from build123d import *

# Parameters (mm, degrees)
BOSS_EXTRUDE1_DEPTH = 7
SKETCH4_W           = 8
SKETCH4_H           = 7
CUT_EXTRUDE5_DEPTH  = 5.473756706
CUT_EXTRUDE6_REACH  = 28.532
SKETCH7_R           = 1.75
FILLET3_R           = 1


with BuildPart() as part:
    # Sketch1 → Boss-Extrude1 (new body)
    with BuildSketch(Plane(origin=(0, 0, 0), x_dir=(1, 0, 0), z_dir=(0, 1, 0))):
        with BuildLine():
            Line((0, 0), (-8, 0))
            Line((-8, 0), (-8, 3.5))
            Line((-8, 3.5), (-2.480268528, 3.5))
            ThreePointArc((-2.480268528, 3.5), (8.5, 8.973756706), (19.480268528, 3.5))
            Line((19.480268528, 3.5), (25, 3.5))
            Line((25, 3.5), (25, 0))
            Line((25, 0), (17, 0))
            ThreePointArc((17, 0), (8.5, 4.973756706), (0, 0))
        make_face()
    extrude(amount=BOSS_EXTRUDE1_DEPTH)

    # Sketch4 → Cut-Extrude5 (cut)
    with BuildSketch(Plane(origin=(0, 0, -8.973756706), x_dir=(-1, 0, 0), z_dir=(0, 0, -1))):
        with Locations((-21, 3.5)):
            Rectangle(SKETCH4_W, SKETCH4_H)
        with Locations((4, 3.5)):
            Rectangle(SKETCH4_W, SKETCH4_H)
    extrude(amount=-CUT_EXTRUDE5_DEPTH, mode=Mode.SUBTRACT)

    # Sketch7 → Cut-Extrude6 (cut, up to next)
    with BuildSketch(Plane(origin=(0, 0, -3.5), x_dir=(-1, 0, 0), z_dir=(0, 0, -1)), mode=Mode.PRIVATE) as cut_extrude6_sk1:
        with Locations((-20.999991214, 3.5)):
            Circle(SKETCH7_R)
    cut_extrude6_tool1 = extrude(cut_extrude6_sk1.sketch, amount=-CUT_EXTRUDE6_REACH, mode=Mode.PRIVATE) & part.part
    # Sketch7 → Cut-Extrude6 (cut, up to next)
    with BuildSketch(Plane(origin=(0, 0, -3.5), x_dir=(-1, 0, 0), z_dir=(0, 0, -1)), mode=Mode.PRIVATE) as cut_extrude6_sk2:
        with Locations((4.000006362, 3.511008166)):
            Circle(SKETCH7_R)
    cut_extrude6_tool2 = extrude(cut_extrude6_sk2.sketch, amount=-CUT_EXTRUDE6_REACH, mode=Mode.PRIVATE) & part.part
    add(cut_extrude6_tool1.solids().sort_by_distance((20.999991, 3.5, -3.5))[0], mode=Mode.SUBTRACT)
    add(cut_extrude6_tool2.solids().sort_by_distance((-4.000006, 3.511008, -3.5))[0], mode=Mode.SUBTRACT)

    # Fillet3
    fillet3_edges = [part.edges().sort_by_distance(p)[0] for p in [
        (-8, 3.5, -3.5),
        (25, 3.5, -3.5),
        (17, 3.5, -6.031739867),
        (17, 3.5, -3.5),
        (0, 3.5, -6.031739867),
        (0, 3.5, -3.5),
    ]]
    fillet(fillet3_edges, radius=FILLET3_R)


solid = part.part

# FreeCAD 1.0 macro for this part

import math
import FreeCAD as App
import Part
import Sketcher

V = App.Vector


def edges_at(feature, points):
    """Names of the edges that pass closest to the given points."""
    edges = feature.Shape.Edges
    near = lambda p: min(range(len(edges)), key=lambda i: edges[i].distToShape(Part.Vertex(*p))[0])
    return sorted({f"Edge{near(p) + 1}" for p in points})

doc = App.newDocument("Part")
body = doc.addObject("PartDesign::Body", "Body")

sketch1 = body.newObject("Sketcher::SketchObject", "Sketch")
sketch1.AttachmentSupport = (doc.getObject("XZ_Plane"), [""])
sketch1.MapMode = "FlatFace"
sketch1.addGeometry([
    Part.LineSegment(V(-8, 0, 0), V(0, 0, 0)),
    Part.ArcOfCircle(Part.Circle(V(8.5, 4.776243, 0), V(0, 0, 1), 9.75), math.radians(-150.66789), math.radians(-29.33211)),
    Part.LineSegment(V(17, 0, 0), V(25, 0, 0)),
    Part.LineSegment(V(25, 0, 0), V(25, -3.5, 0)),
    Part.LineSegment(V(25, -3.5, 0), V(19.480269, -3.5, 0)),
    Part.ArcOfCircle(Part.Circle(V(8.5, 4.776243, 0), V(0, 0, 1), 13.75), math.radians(-142.993286), math.radians(-37.006714)),
    Part.LineSegment(V(-2.480269, -3.5, 0), V(-8, -3.5, 0)),
    Part.LineSegment(V(-8, -3.5, 0), V(-8, 0, 0)),
], False)
sketch1.addConstraint([
    Sketcher.Constraint("Coincident", 0, 2, 1, 1),
    Sketcher.Constraint("Coincident", 1, 2, 2, 1),
    Sketcher.Constraint("Coincident", 2, 2, 3, 1),
    Sketcher.Constraint("Coincident", 3, 2, 4, 1),
    Sketcher.Constraint("Coincident", 4, 2, 5, 2),
    Sketcher.Constraint("Coincident", 5, 1, 6, 1),
    Sketcher.Constraint("Coincident", 6, 2, 7, 1),
    Sketcher.Constraint("Coincident", 7, 2, 0, 1),
    Sketcher.Constraint("Horizontal", 0),
    Sketcher.Constraint("Horizontal", 2),
    Sketcher.Constraint("Vertical", 3),
    Sketcher.Constraint("Horizontal", 4),
    Sketcher.Constraint("Horizontal", 6),
    Sketcher.Constraint("Vertical", 7),
    Sketcher.Constraint("Coincident", 0, 2, -1, 1),
    Sketcher.Constraint("Coincident", 5, 3, 1, 3),
    Sketcher.Constraint("PointOnObject", 1, 2, -1),
    Sketcher.Constraint("Horizontal", 4, 2, 5, 1),
    Sketcher.Constraint("Equal", 0, 2),
    Sketcher.Constraint("DistanceX", 0, 1, 0, 2, 8.0),
    Sketcher.Constraint("Radius", 1, 9.75),
    Sketcher.Constraint("Radius", 5, 13.75),
    Sketcher.Constraint("DistanceY", 3, 2, 3, 1, 3.5),
    Sketcher.Constraint("DistanceX", -1, 1, 1, 2, 17.0),
])
pad1 = body.newObject("PartDesign::Pad", "Pad")
pad1.Profile = sketch1
pad1.Length = 7
pad1.Reversed = True

sketch2 = body.newObject("Sketcher::SketchObject", "Sketch001")
sketch2.AttachmentSupport = (doc.getObject("XY_Plane"), [""])
sketch2.MapMode = "FlatFace"
sketch2.AttachmentOffset = App.Placement(V(0, 0, -8.973757), App.Rotation())
sketch2.addGeometry([
    Part.LineSegment(V(25, 7, 0), V(25, 0, 0)),
    Part.LineSegment(V(25, 0, 0), V(17, 0, 0)),
    Part.LineSegment(V(17, 0, 0), V(17, 7, 0)),
    Part.LineSegment(V(17, 7, 0), V(25, 7, 0)),
    Part.LineSegment(V(0, 7, 0), V(0, 0, 0)),
    Part.LineSegment(V(0, 0, 0), V(-8, 0, 0)),
    Part.LineSegment(V(-8, 0, 0), V(-8, 7, 0)),
    Part.LineSegment(V(-8, 7, 0), V(0, 7, 0)),
], False)
sketch2.addConstraint([
    Sketcher.Constraint("Coincident", 0, 2, 1, 1),
    Sketcher.Constraint("Coincident", 1, 2, 2, 1),
    Sketcher.Constraint("Coincident", 2, 2, 3, 1),
    Sketcher.Constraint("Coincident", 3, 2, 0, 1),
    Sketcher.Constraint("Coincident", 4, 2, 5, 1),
    Sketcher.Constraint("Coincident", 5, 2, 6, 1),
    Sketcher.Constraint("Coincident", 6, 2, 7, 1),
    Sketcher.Constraint("Coincident", 7, 2, 4, 1),
    Sketcher.Constraint("Vertical", 0),
    Sketcher.Constraint("Horizontal", 1),
    Sketcher.Constraint("Vertical", 2),
    Sketcher.Constraint("Horizontal", 3),
    Sketcher.Constraint("Vertical", 4),
    Sketcher.Constraint("Horizontal", 5),
    Sketcher.Constraint("Vertical", 6),
    Sketcher.Constraint("Horizontal", 7),
    Sketcher.Constraint("Coincident", 4, 2, -1, 1),
    Sketcher.Constraint("PointOnObject", 0, 2, -1),
    Sketcher.Constraint("Horizontal", 3, 2, 6, 2),
    Sketcher.Constraint("Equal", 3, 5),
    Sketcher.Constraint("DistanceX", 1, 2, 1, 1, 8.0),
    Sketcher.Constraint("DistanceY", 0, 2, 0, 1, 7.0),
    Sketcher.Constraint("DistanceX", -1, 1, 0, 2, 25.0),
])
pocket1 = body.newObject("PartDesign::Pocket", "Pocket")
pocket1.Profile = sketch2
pocket1.Length = 5.473757
pocket1.Reversed = True

sketch3 = body.newObject("Sketcher::SketchObject", "Sketch002")
sketch3.AttachmentSupport = (doc.getObject("XY_Plane"), [""])
sketch3.MapMode = "FlatFace"
sketch3.AttachmentOffset = App.Placement(V(0, 0, -3.5), App.Rotation())
sketch3.addGeometry(Part.Circle(V(20.999991, 3.5, 0), V(0, 0, 1), 1.75), False)
sketch3.addConstraint([
    Sketcher.Constraint("Diameter", 0, 3.5),
    Sketcher.Constraint("DistanceY", -1, 1, 0, 3, 3.5),
    Sketcher.Constraint("DistanceX", -1, 1, 0, 3, 20.999991),
])
pocket2 = body.newObject("PartDesign::Pocket", "Pocket001")
pocket2.Profile = sketch3
pocket2.Type = "UpToFirst"
pocket2.Reversed = True

sketch4 = body.newObject("Sketcher::SketchObject", "Sketch003")
sketch4.AttachmentSupport = (doc.getObject("XY_Plane"), [""])
sketch4.MapMode = "FlatFace"
sketch4.AttachmentOffset = App.Placement(V(0, 0, -3.5), App.Rotation())
sketch4.addGeometry(Part.Circle(V(-4.000006, 3.511008, 0), V(0, 0, 1), 1.75), False)
sketch4.addConstraint([
    Sketcher.Constraint("Diameter", 0, 3.5),
    Sketcher.Constraint("DistanceY", -1, 1, 0, 3, 3.511008),
    Sketcher.Constraint("DistanceX", 0, 3, -1, 1, 4.000006),
])
pocket3 = body.newObject("PartDesign::Pocket", "Pocket002")
pocket3.Profile = sketch4
pocket3.Type = "UpToFirst"
pocket3.Reversed = True
doc.recompute()

fillet = body.newObject("PartDesign::Fillet", "Fillet")
fillet.Base = (pocket3, edges_at(pocket3, [
    (-8, 3.5, -3.5),
    (25, 3.5, -3.5),
    (17, 3.5, -6.032),
    (17, 3.5, -3.5),
    (0, 3.5, -6.032),
    (0, 3.5, -3.5),
]))
fillet.Radius = 1

doc.recompute()
